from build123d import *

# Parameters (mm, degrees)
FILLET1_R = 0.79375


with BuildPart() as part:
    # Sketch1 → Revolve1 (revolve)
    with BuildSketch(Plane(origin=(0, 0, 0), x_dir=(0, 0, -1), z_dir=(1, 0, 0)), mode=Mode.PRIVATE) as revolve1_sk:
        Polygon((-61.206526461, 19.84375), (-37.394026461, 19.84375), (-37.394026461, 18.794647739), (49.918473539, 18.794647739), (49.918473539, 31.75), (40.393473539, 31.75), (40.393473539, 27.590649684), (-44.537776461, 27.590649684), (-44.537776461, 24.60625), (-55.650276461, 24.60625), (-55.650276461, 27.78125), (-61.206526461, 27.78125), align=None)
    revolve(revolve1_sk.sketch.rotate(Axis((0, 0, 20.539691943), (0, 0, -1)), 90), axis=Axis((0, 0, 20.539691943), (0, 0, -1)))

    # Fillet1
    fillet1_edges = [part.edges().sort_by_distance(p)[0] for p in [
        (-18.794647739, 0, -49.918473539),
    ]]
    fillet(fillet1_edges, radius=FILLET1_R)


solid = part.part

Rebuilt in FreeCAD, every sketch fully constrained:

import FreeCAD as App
import Part
import Sketcher

V = App.Vector
Q = App.Units.Quantity


def edges_at(feature, points):
    """Names of the edges that pass closest to the given points."""
    edges = feature.Shape.Edges
    near = lambda p: min(range(len(edges)), key=lambda i: edges[i].distToShape(Part.Vertex(*p))[0])
    return sorted({f"Edge{near(p) + 1}" for p in points})


def add_polygon(sketch, points):
    """Adds a closed chain of lines whose ends are joined by coincident constraints."""
    first, n = sketch.GeometryCount, len(points)
    for a, b in zip(points, points[1:] + points[:1]):
        sketch.addGeometry(Part.LineSegment(App.Vector(*a, 0), App.Vector(*b, 0)), False)
    for i in range(n):
        sketch.addConstraint(Sketcher.Constraint("Coincident", first + i, 2, first + (i + 1) % n, 1))

doc = App.newDocument("Part")
body = doc.addObject("PartDesign::Body", "Body")

# Sketch on YZ plane
sketch1 = body.newObject("Sketcher::SketchObject", "Sketch")
sketch1.AttachmentSupport = (doc.getObject("YZ_Plane"), [""])
sketch1.MapMode = "FlatFace"
add_polygon(sketch1, [(19.84375, 61.206526), (19.84375, 37.394026), (18.794648, 37.394026), (18.794648, -49.918474), (31.75, -49.918474), (31.75, -40.393474), (27.59065, -40.393474), (27.59065, 44.537776), (24.60625, 44.537776), (24.60625, 55.650276), (27.78125, 55.650276), (27.78125, 61.206526)])  # lines 0-11
sketch1.addConstraint([
    Sketcher.Constraint("Vertical", 0),
    Sketcher.Constraint("Horizontal", 1),
    Sketcher.Constraint("Vertical", 2),
    Sketcher.Constraint("Horizontal", 3),
    Sketcher.Constraint("Vertical", 4),
    Sketcher.Constraint("Horizontal", 5),
    Sketcher.Constraint("Vertical", 6),
    Sketcher.Constraint("Horizontal", 7),
    Sketcher.Constraint("Vertical", 8),
    Sketcher.Constraint("Horizontal", 9),
    Sketcher.Constraint("Vertical", 10),
    Sketcher.Constraint("Horizontal", 11),
    Sketcher.Constraint("DistanceX", 9, 1, 9, 2, Q("0.125 in")),
    Sketcher.Constraint("DistanceX", 11, 2, 11, 1, Q("0.3125 in")),
    Sketcher.Constraint("DistanceY", 0, 2, 0, 1, Q("0.9375 in")),
    Sketcher.Constraint("DistanceY", 2, 2, 2, 1, Q("3.4375 in")),
    Sketcher.Constraint("DistanceY", 4, 1, 4, 2, Q("0.375 in")),
    Sketcher.Constraint("DistanceY", 6, 1, 6, 2, Q("3.34375 in")),
    Sketcher.Constraint("DistanceY", 8, 1, 8, 2, Q("0.4375 in")),
    Sketcher.Constraint("DistanceX", -1, 1, 3, 2, Q("1.25 in")),
    Sketcher.Constraint("DistanceX", -1, 1, 0, 2, Q("0.78125 in")),
    Sketcher.Constraint("DistanceX", 7, 2, 7, 1, Q("2.9844 mm")),
    Sketcher.Constraint("DistanceX", 2, 2, 5, 2, Q("8.796002 mm")),
    Sketcher.Constraint("DistanceY", -1, 1, 0, 2, Q("37.394026 mm")),
])
revolution = body.newObject("PartDesign::Revolution", "Revolution")
revolution.Profile = sketch1
revolution.ReferenceAxis = (sketch1, ["V_Axis"])
revolution.Angle = 360
doc.recompute()

fillet = body.newObject("PartDesign::Fillet", "Fillet")
fillet.Base = (revolution, edges_at(revolution, [(-18.795, 0, -49.918)]))
fillet.Radius = Q("0.03125 in")

doc.recompute()
